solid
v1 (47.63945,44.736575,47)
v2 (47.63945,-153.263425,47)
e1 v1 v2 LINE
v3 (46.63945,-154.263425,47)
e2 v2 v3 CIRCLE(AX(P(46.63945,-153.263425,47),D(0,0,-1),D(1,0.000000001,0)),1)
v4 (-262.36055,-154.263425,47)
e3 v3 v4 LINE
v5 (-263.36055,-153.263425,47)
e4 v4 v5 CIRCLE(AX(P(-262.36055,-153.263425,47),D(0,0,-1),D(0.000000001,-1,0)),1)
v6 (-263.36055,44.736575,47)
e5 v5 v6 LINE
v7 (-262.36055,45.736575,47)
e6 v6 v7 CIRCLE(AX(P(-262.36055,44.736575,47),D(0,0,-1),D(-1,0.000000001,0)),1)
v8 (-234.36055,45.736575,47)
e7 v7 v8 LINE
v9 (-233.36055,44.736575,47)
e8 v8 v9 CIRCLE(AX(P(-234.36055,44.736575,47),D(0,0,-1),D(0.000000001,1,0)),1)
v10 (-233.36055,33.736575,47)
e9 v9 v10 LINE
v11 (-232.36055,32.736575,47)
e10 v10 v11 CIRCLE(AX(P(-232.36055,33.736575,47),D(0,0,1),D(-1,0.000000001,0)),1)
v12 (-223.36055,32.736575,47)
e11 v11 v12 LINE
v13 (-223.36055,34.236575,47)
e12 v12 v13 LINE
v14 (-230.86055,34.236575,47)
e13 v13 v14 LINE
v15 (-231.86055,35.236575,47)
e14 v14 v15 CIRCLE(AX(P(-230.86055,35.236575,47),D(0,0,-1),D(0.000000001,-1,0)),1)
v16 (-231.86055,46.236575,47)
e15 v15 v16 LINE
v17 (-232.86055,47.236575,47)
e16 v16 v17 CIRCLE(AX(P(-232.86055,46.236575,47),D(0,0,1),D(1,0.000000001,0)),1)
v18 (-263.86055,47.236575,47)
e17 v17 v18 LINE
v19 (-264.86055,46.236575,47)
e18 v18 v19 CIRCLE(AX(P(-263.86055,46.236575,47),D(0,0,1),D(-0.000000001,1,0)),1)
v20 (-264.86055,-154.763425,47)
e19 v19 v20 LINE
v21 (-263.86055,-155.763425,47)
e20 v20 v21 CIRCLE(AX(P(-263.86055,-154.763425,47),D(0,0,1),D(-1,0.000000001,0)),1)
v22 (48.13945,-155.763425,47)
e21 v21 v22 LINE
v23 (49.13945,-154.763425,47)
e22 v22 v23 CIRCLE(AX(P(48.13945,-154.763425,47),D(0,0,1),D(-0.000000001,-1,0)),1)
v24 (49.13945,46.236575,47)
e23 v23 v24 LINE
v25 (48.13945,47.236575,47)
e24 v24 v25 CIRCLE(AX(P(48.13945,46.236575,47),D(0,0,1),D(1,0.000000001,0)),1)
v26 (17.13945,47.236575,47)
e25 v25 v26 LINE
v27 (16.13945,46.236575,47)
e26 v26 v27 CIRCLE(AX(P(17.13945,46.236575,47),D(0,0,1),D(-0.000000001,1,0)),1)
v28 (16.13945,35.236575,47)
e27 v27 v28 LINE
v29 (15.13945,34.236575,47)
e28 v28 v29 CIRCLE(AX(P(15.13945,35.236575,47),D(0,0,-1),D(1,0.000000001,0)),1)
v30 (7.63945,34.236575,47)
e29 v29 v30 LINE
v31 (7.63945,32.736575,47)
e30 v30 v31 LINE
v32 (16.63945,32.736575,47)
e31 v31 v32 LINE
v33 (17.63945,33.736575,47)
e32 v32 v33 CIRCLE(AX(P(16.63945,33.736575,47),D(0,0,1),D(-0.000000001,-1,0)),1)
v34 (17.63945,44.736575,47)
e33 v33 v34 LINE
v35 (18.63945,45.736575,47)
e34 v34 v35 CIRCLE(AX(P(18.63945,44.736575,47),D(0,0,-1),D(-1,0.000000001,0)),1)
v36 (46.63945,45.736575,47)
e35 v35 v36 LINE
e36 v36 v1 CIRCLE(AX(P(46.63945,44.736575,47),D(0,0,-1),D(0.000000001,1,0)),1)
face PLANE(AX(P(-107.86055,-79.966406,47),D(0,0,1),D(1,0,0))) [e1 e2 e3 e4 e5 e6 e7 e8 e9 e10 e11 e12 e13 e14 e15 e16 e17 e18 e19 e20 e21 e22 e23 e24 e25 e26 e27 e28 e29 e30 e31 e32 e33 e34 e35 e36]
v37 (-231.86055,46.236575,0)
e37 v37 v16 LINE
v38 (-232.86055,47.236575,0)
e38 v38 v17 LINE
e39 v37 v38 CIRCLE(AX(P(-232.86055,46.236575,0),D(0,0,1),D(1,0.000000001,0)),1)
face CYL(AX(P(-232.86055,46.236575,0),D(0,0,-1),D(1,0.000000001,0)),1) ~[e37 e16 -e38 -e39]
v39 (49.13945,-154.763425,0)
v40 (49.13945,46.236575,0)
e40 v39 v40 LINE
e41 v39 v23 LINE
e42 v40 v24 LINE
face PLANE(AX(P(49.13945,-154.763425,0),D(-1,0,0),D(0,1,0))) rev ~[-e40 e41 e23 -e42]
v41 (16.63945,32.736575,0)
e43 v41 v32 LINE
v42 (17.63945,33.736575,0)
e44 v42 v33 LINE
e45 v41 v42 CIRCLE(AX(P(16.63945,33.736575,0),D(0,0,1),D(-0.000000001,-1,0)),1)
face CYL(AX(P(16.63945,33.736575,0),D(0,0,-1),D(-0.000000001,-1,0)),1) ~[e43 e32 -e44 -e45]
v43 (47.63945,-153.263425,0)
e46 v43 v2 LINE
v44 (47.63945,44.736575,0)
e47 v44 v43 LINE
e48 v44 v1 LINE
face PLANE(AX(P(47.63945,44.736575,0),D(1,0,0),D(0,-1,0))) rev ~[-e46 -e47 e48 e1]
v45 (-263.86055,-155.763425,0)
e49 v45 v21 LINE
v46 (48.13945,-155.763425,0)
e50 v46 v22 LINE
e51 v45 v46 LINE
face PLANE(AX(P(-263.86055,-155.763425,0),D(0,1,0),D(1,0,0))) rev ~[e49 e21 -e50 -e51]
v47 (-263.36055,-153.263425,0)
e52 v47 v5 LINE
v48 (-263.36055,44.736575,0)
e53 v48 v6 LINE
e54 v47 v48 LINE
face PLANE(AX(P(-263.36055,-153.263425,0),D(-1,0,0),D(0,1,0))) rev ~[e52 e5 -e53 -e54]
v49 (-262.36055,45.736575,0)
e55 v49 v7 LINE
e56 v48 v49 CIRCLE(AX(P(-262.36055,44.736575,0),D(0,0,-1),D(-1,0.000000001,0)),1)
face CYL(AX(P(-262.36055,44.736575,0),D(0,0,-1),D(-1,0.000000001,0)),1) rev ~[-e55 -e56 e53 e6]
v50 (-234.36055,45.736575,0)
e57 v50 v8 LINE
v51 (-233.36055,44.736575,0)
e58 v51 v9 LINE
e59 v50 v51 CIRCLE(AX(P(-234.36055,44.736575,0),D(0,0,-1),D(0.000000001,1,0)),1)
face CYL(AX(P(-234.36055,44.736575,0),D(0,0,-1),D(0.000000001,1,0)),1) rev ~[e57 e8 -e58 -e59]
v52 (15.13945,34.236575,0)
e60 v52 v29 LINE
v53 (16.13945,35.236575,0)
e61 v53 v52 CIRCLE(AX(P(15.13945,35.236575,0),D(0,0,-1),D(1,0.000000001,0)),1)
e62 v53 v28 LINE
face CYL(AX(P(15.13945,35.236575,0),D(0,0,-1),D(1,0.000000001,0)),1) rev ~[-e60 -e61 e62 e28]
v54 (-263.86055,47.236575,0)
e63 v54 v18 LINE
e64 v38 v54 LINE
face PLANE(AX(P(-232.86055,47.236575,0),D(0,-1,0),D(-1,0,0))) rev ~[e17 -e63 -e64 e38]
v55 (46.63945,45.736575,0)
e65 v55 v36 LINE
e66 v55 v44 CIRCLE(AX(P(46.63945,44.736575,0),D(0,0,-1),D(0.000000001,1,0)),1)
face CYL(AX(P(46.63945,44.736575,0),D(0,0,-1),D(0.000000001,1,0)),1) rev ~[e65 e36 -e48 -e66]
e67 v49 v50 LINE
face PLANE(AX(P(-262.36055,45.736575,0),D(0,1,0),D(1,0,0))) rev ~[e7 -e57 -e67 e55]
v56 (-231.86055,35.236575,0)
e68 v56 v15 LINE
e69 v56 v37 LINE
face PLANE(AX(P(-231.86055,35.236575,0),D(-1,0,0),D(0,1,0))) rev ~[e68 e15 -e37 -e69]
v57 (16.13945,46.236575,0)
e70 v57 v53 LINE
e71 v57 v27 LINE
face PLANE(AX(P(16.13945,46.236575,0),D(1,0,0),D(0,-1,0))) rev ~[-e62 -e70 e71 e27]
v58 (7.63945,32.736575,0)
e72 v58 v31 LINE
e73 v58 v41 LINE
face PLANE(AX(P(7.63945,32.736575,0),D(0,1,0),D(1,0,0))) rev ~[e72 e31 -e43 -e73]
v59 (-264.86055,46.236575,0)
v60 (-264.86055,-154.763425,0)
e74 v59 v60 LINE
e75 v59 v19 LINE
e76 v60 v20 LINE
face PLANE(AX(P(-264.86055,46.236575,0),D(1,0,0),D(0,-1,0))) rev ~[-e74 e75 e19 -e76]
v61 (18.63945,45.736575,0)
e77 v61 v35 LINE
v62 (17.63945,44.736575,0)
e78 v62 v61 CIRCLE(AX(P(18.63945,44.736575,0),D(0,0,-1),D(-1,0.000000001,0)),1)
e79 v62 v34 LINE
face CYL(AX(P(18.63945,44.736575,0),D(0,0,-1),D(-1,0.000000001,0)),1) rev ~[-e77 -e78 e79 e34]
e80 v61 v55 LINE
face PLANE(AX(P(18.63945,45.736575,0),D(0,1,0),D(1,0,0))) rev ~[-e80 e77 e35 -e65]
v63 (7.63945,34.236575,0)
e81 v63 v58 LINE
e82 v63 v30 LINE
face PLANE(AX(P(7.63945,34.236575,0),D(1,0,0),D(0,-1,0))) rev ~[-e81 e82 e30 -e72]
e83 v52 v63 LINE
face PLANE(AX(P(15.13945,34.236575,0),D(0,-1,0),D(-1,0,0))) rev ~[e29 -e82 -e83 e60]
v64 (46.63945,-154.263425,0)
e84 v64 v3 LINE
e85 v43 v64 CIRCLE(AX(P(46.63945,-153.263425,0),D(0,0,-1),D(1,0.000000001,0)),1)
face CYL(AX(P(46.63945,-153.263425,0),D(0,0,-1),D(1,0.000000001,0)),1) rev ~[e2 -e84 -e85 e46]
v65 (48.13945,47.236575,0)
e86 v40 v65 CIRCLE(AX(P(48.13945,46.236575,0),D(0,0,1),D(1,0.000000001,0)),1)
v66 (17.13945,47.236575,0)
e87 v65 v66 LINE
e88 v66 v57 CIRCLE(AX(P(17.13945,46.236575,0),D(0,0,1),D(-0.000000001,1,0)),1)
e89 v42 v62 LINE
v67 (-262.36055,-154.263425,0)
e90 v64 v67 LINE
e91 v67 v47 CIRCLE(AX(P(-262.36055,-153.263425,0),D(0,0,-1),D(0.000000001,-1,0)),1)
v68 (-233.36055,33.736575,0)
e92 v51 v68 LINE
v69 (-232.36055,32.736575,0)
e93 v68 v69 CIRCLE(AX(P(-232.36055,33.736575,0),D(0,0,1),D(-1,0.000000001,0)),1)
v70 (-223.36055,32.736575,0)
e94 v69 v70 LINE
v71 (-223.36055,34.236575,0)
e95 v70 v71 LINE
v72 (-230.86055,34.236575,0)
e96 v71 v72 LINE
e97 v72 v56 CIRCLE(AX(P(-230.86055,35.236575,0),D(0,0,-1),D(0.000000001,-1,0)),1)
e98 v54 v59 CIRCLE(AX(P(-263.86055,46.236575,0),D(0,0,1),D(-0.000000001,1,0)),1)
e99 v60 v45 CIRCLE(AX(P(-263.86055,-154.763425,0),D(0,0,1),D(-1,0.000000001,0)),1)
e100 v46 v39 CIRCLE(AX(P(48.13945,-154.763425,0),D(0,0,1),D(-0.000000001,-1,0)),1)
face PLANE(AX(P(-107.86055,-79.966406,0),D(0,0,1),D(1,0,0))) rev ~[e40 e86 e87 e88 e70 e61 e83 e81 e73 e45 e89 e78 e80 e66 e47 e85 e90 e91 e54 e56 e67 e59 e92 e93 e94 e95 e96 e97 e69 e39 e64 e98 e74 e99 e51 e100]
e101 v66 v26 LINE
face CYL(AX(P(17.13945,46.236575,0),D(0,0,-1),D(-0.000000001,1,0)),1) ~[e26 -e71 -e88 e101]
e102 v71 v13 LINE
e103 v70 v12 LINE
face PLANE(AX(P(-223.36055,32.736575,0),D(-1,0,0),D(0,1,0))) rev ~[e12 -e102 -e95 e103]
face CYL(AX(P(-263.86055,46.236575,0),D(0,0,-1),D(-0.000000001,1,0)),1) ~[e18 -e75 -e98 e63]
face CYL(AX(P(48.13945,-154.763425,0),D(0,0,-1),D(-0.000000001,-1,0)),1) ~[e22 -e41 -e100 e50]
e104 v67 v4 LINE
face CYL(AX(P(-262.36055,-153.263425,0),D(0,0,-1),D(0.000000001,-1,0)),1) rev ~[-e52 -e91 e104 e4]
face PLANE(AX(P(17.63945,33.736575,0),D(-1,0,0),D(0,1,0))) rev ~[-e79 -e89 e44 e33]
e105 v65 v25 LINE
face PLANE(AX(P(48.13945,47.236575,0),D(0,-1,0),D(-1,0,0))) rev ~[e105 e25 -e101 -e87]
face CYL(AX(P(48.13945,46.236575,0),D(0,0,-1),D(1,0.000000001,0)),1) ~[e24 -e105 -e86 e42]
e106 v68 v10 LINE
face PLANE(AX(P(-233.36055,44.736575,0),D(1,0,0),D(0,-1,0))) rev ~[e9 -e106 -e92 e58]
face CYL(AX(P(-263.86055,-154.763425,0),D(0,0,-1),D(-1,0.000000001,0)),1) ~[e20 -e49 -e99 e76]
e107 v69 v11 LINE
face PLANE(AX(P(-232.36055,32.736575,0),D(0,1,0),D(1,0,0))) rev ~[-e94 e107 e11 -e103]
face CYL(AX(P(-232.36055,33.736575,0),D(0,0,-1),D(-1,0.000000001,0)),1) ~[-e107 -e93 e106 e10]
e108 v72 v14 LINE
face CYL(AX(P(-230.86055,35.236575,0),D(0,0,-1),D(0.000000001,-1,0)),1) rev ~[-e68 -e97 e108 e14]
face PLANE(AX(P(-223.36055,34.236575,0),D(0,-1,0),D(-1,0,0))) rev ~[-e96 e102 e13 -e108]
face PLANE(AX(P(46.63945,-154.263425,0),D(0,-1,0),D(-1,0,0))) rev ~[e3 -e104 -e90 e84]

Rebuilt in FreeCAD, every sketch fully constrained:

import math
import FreeCAD as App
import Part
import Sketcher
from FreeCAD import Vector

doc = App.newDocument("Part")
body = doc.addObject("PartDesign::Body", "Body")

sketch1 = body.newObject("Sketcher::SketchObject", "Sketch")
sketch1.AttachmentSupport = (doc.getObject("XY_Plane"), [""])
sketch1.MapMode = "FlatFace"
sketch1.addGeometry([
    Part.LineSegment(Vector(18.6, 45.7, 0), Vector(46.6, 45.7, 0)),
    Part.ArcOfCircle(Part.Circle(Vector(46.6, 44.7, 0), Vector(0, 0, 1), 1), math.radians(0), math.radians(90)),
    Part.LineSegment(Vector(47.6, 44.7, 0), Vector(47.6, -153.3, 0)),
    Part.ArcOfCircle(Part.Circle(Vector(46.6, -153.3, 0), Vector(0, 0, 1), 1), math.radians(-90), math.radians(0)),
    Part.LineSegment(Vector(46.6, -154.3, 0), Vector(-262.4, -154.3, 0)),
    Part.ArcOfCircle(Part.Circle(Vector(-262.4, -153.3, 0), Vector(0, 0, 1), 1), math.radians(180), math.radians(270)),
    Part.LineSegment(Vector(-263.4, -153.3, 0), Vector(-263.4, 44.7, 0)),
    Part.ArcOfCircle(Part.Circle(Vector(-262.4, 44.7, 0), Vector(0, 0, 1), 1), math.radians(90), math.radians(180)),
    Part.LineSegment(Vector(-262.4, 45.7, 0), Vector(-234.4, 45.7, 0)),
    Part.ArcOfCircle(Part.Circle(Vector(-234.4, 44.7, 0), Vector(0, 0, 1), 1), math.radians(0), math.radians(90)),
    Part.LineSegment(Vector(-233.4, 44.7, 0), Vector(-233.4, 33.7, 0)),
    Part.ArcOfCircle(Part.Circle(Vector(-232.4, 33.7, 0), Vector(0, 0, 1), 1), math.radians(180), math.radians(270)),
    Part.LineSegment(Vector(-232.4, 32.7, 0), Vector(-223.4, 32.7, 0)),
    Part.LineSegment(Vector(-223.4, 32.7, 0), Vector(-223.4, 34.2, 0)),
    Part.LineSegment(Vector(-223.4, 34.2, 0), Vector(-230.9, 34.2, 0)),
    Part.ArcOfCircle(Part.Circle(Vector(-230.9, 35.2, 0), Vector(0, 0, 1), 1), math.radians(180), math.radians(270)),
    Part.LineSegment(Vector(-231.9, 35.2, 0), Vector(-231.9, 46.2, 0)),
    Part.ArcOfCircle(Part.Circle(Vector(-232.9, 46.2, 0), Vector(0, 0, 1), 1), math.radians(0), math.radians(90)),
    Part.LineSegment(Vector(-232.9, 47.2, 0), Vector(-263.9, 47.2, 0)),
    Part.ArcOfCircle(Part.Circle(Vector(-263.9, 46.2, 0), Vector(0, 0, 1), 1), math.radians(90), math.radians(180)),
    Part.LineSegment(Vector(-264.9, 46.2, 0), Vector(-264.9, -154.8, 0)),
    Part.ArcOfCircle(Part.Circle(Vector(-263.9, -154.8, 0), Vector(0, 0, 1), 1), math.radians(180), math.radians(270)),
    Part.LineSegment(Vector(-263.9, -155.8, 0), Vector(48.1, -155.8, 0)),
    Part.ArcOfCircle(Part.Circle(Vector(48.1, -154.8, 0), Vector(0, 0, 1), 1), math.radians(-90), math.radians(0)),
    Part.LineSegment(Vector(49.1, -154.8, 0), Vector(49.1, 46.2, 0)),
    Part.ArcOfCircle(Part.Circle(Vector(48.1, 46.2, 0), Vector(0, 0, 1), 1), math.radians(0), math.radians(90)),
    Part.LineSegment(Vector(48.1, 47.2, 0), Vector(17.1, 47.2, 0)),
    Part.ArcOfCircle(Part.Circle(Vector(17.1, 46.2, 0), Vector(0, 0, 1), 1), math.radians(90), math.radians(180)),
    Part.LineSegment(Vector(16.1, 46.2, 0), Vector(16.1, 35.2, 0)),
    Part.ArcOfCircle(Part.Circle(Vector(15.1, 35.2, 0), Vector(0, 0, 1), 1), math.radians(-90), math.radians(0)),
    Part.LineSegment(Vector(15.1, 34.2, 0), Vector(7.6, 34.2, 0)),
    Part.LineSegment(Vector(7.6, 34.2, 0), Vector(7.6, 32.7, 0)),
    Part.LineSegment(Vector(7.6, 32.7, 0), Vector(16.6, 32.7, 0)),
    Part.ArcOfCircle(Part.Circle(Vector(16.6, 33.7, 0), Vector(0, 0, 1), 1), math.radians(-90), math.radians(0)),
    Part.LineSegment(Vector(17.6, 33.7, 0), Vector(17.6, 44.7, 0)),
    Part.ArcOfCircle(Part.Circle(Vector(18.6, 44.7, 0), Vector(0, 0, 1), 1), math.radians(90), math.radians(180)),
], False)
sketch1.addConstraint([
    Sketcher.Constraint("Tangent", 0, 2, 1, 2),
    Sketcher.Constraint("Tangent", 1, 1, 2, 1),
    Sketcher.Constraint("Tangent", 2, 2, 3, 2),
    Sketcher.Constraint("Tangent", 3, 1, 4, 1),
    Sketcher.Constraint("Tangent", 4, 2, 5, 2),
    Sketcher.Constraint("Tangent", 5, 1, 6, 1),
    Sketcher.Constraint("Tangent", 6, 2, 7, 2),
    Sketcher.Constraint("Tangent", 7, 1, 8, 1),
    Sketcher.Constraint("Tangent", 8, 2, 9, 2),
    Sketcher.Constraint("Tangent", 9, 1, 10, 1),
    Sketcher.Constraint("Tangent", 10, 2, 11, 1),
    Sketcher.Constraint("Tangent", 11, 2, 12, 1),
    Sketcher.Constraint("Coincident", 12, 2, 13, 1),
    Sketcher.Constraint("Coincident", 13, 2, 14, 1),
    Sketcher.Constraint("Tangent", 14, 2, 15, 2),
    Sketcher.Constraint("Tangent", 15, 1, 16, 1),
    Sketcher.Constraint("Tangent", 16, 2, 17, 1),
    Sketcher.Constraint("Tangent", 17, 2, 18, 1),
    Sketcher.Constraint("Tangent", 18, 2, 19, 1),
    Sketcher.Constraint("Tangent", 19, 2, 20, 1),
    Sketcher.Constraint("Tangent", 20, 2, 21, 1),
    Sketcher.Constraint("Tangent", 21, 2, 22, 1),
    Sketcher.Constraint("Tangent", 22, 2, 23, 1),
    Sketcher.Constraint("Tangent", 23, 2, 24, 1),
    Sketcher.Constraint("Tangent", 24, 2, 25, 1),
    Sketcher.Constraint("Tangent", 25, 2, 26, 1),
    Sketcher.Constraint("Tangent", 26, 2, 27, 1),
    Sketcher.Constraint("Tangent", 27, 2, 28, 1),
    Sketcher.Constraint("Tangent", 28, 2, 29, 2),
    Sketcher.Constraint("Tangent", 29, 1, 30, 1),
    Sketcher.Constraint("Coincident", 30, 2, 31, 1),
    Sketcher.Constraint("Coincident", 31, 2, 32, 1),
    Sketcher.Constraint("Tangent", 32, 2, 33, 1),
    Sketcher.Constraint("Tangent", 33, 2, 34, 1),
    Sketcher.Constraint("Tangent", 34, 2, 35, 2),
    Sketcher.Constraint("Tangent", 35, 1, 0, 1),
    Sketcher.Constraint("Horizontal", 0),
    Sketcher.Constraint("Vertical", 2),
    Sketcher.Constraint("Horizontal", 4),
    Sketcher.Constraint("Vertical", 6),
    Sketcher.Constraint("Horizontal", 8),
    Sketcher.Constraint("Vertical", 10),
    Sketcher.Constraint("Horizontal", 12),
    Sketcher.Constraint("Vertical", 13),
    Sketcher.Constraint("Horizontal", 14),
    Sketcher.Constraint("Vertical", 16),
    Sketcher.Constraint("Horizontal", 18),
    Sketcher.Constraint("Vertical", 20),
    Sketcher.Constraint("Horizontal", 22),
    Sketcher.Constraint("Vertical", 24),
    Sketcher.Constraint("Horizontal", 26),
    Sketcher.Constraint("Vertical", 28),
    Sketcher.Constraint("Horizontal", 30),
    Sketcher.Constraint("Vertical", 31),
    Sketcher.Constraint("Horizontal", 32),
    Sketcher.Constraint("Vertical", 34),
    Sketcher.Constraint("Equal", 1, 3),
    Sketcher.Constraint("Equal", 3, 5),
    Sketcher.Constraint("Equal", 5, 7),
    Sketcher.Constraint("Equal", 7, 9),
    Sketcher.Constraint("Equal", 9, 11),
    Sketcher.Constraint("Equal", 11, 15),
    Sketcher.Constraint("Equal", 15, 17),
    Sketcher.Constraint("Equal", 17, 19),
    Sketcher.Constraint("Equal", 19, 21),
    Sketcher.Constraint("Equal", 21, 23),
    Sketcher.Constraint("Equal", 23, 25),
    Sketcher.Constraint("Equal", 25, 27),
    Sketcher.Constraint("Equal", 27, 29),
    Sketcher.Constraint("Equal", 29, 33),
    Sketcher.Constraint("Equal", 33, 35),
    Sketcher.Constraint("Horizontal", 1, 3, 7, 3),
    Sketcher.Constraint("Horizontal", 19, 3, 25, 3),
    Sketcher.Constraint("Horizontal", 15, 3, 29, 3),
    Sketcher.Constraint("Horizontal", 11, 3, 33, 3),
    Sketcher.Constraint("Equal", 0, 8),
    Sketcher.Constraint("Equal", 18, 26),
    Sketcher.Constraint("Equal", 14, 30),
    Sketcher.Constraint("Equal", 12, 32),
    Sketcher.Constraint("Equal", 10, 16),
    Sketcher.Constraint("Radius", 1, 1.0),
    Sketcher.Constraint("DistanceX", 0, 1, 0, 2, 28.0),
    Sketcher.Constraint("DistanceX", 4, 2, 4, 1, 309.0),
    Sketcher.Constraint("DistanceX", 12, 1, 12, 2, 9.0),
    Sketcher.Constraint("DistanceX", 18, 2, 18, 1, 31.0),
    Sketcher.Constraint("DistanceX", 22, 1, 22, 2, 312.0),
    Sketcher.Constraint("DistanceY", 2, 2, 2, 1, 198.0),
    Sketcher.Constraint("DistanceY", 10, 2, 10, 1, 11.0),
    Sketcher.Constraint("DistanceY", 20, 2, 20, 1, 201.0),
    Sketcher.Constraint("DistanceY", 13, 1, 13, 2, 1.5),
    Sketcher.Constraint("DistanceX", -1, 1, 1, 3, 46.63945),
    Sketcher.Constraint("DistanceY", -1, 1, 1, 3, 44.736575),
])
pad1 = body.newObject("PartDesign::Pad", "Pad")
pad1.Profile = sketch1
pad1.Length = 47

doc.recompute()
